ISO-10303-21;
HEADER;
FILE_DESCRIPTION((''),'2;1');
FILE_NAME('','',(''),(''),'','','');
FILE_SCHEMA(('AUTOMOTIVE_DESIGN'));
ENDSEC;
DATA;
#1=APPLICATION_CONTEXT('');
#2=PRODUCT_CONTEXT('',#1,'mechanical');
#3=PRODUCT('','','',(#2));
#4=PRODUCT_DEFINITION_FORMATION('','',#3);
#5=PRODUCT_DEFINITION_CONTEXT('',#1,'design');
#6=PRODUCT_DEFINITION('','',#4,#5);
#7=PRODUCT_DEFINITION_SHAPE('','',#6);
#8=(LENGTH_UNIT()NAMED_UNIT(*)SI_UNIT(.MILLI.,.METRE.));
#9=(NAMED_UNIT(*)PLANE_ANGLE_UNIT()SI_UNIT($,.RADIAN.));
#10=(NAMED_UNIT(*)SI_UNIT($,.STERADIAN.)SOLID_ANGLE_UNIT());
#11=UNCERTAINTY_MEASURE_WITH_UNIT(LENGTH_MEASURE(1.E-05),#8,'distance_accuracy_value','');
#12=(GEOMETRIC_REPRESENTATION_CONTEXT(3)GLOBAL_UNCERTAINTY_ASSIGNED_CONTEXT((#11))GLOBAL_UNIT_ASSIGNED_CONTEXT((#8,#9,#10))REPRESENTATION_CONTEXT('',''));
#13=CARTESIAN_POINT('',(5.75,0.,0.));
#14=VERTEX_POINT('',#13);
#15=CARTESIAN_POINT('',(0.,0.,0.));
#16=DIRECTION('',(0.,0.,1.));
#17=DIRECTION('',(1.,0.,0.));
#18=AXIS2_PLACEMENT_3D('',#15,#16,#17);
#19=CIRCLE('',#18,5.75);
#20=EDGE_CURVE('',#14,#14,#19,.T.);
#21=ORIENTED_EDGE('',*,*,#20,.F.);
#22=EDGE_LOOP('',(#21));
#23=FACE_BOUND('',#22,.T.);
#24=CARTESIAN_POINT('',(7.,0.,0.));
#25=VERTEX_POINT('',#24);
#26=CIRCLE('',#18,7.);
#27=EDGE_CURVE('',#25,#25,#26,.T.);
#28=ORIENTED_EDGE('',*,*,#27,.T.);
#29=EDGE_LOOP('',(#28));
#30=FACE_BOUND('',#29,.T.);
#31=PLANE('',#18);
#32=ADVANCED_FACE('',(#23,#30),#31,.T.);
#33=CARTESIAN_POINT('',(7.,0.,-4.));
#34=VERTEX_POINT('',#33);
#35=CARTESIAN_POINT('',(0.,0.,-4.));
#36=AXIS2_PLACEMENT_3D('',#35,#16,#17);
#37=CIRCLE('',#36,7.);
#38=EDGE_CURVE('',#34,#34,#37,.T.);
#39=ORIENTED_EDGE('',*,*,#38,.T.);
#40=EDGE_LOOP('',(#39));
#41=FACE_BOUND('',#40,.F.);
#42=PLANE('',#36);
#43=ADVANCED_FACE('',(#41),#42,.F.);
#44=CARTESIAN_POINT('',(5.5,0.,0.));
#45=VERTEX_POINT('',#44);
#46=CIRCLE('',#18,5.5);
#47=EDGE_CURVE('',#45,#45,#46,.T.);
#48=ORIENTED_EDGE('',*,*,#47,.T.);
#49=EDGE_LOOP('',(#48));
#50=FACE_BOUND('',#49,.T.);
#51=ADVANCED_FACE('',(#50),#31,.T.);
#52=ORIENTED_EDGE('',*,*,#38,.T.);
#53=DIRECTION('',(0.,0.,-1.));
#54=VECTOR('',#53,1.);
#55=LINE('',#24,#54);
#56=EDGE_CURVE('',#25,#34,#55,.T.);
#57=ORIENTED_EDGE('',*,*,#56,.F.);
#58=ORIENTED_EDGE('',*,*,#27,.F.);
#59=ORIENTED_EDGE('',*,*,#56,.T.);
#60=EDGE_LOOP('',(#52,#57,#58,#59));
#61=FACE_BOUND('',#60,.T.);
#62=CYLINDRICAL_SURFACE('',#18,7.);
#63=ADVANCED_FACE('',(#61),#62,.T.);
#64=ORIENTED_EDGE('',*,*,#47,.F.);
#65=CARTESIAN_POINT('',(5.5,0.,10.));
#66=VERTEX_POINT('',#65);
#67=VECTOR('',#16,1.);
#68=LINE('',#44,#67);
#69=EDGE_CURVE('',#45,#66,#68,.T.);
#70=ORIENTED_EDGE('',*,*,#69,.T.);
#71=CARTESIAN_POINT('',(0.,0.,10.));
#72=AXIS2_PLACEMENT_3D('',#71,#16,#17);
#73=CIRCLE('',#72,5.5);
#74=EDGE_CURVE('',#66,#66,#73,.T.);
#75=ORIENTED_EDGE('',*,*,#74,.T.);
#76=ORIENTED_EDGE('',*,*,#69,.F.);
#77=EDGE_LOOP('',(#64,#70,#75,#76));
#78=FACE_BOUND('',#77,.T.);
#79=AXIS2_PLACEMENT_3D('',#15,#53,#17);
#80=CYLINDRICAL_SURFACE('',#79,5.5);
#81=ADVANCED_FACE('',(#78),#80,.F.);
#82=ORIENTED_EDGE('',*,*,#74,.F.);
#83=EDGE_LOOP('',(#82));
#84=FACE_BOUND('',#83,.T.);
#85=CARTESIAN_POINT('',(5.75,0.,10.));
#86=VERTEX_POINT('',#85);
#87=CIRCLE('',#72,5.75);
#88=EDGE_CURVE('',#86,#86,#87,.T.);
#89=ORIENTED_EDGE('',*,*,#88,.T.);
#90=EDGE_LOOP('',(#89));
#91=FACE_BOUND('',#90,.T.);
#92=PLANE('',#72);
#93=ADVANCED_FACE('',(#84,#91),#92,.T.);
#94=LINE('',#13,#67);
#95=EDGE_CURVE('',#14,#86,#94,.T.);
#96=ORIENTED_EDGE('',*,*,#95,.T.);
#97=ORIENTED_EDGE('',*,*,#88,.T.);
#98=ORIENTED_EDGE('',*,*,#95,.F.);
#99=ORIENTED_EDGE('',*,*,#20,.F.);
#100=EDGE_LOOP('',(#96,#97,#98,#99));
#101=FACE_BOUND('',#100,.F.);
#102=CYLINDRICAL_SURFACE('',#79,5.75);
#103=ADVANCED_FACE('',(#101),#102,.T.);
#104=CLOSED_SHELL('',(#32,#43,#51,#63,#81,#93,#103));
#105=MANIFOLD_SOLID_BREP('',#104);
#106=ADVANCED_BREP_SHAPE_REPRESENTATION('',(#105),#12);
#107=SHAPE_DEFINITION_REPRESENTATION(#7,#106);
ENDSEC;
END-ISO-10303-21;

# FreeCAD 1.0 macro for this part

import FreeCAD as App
import Part
import Sketcher
from FreeCAD import Vector
Q = App.Units.Quantity

doc = App.newDocument("Part")
body = doc.addObject("PartDesign::Body", "Body")

# Sketch on XY plane
sketch1 = doc.addObject("Sketcher::SketchObject", "Sketch")
body.addObject(sketch1)
sketch1.AttachmentSupport = (doc.XY_Plane, [""])
sketch1.MapMode = "FlatFace"
sketch1.addGeometry(Part.Circle(Vector(0, 0, 0), Vector(0, 0, 1), 6), False)
sketch1.addGeometry(Part.Circle(Vector(0, 0, 0), Vector(0, 0, 1), 6), False)
sketch1.addConstraint(Sketcher.Constraint("Coincident", 0, 3, -1, 1))
sketch1.addConstraint(Sketcher.Constraint("Coincident", 1, 3, -1, 1))
sketch1.addConstraint(Sketcher.Constraint("Diameter", 1, Q("11 mm")))
sketch1.addConstraint(Sketcher.Constraint("Diameter", 0, Q("11.5 mm")))
pad1 = doc.addObject("PartDesign::Pad", "Pad")
body.addObject(pad1)
pad1.Profile = sketch1
pad1.Length = 10

# Sketch on XY plane
sketch2 = doc.addObject("Sketcher::SketchObject", "Sketch001")
body.addObject(sketch2)
sketch2.AttachmentSupport = (doc.XY_Plane, [""])
sketch2.MapMode = "FlatFace"
sketch2.addGeometry(Part.Circle(Vector(0, 0, 0), Vector(0, 0, 1), 7), False)
sketch2.addConstraint(Sketcher.Constraint("Coincident", 0, 3, -1, 1))
sketch2.addConstraint(Sketcher.Constraint("Diameter", 0, Q("14 mm")))
pad2 = doc.addObject("PartDesign::Pad", "Pad001")
body.addObject(pad2)
pad2.Profile = sketch2
pad2.Length = 4
pad2.Reversed = True

doc.recompute()
